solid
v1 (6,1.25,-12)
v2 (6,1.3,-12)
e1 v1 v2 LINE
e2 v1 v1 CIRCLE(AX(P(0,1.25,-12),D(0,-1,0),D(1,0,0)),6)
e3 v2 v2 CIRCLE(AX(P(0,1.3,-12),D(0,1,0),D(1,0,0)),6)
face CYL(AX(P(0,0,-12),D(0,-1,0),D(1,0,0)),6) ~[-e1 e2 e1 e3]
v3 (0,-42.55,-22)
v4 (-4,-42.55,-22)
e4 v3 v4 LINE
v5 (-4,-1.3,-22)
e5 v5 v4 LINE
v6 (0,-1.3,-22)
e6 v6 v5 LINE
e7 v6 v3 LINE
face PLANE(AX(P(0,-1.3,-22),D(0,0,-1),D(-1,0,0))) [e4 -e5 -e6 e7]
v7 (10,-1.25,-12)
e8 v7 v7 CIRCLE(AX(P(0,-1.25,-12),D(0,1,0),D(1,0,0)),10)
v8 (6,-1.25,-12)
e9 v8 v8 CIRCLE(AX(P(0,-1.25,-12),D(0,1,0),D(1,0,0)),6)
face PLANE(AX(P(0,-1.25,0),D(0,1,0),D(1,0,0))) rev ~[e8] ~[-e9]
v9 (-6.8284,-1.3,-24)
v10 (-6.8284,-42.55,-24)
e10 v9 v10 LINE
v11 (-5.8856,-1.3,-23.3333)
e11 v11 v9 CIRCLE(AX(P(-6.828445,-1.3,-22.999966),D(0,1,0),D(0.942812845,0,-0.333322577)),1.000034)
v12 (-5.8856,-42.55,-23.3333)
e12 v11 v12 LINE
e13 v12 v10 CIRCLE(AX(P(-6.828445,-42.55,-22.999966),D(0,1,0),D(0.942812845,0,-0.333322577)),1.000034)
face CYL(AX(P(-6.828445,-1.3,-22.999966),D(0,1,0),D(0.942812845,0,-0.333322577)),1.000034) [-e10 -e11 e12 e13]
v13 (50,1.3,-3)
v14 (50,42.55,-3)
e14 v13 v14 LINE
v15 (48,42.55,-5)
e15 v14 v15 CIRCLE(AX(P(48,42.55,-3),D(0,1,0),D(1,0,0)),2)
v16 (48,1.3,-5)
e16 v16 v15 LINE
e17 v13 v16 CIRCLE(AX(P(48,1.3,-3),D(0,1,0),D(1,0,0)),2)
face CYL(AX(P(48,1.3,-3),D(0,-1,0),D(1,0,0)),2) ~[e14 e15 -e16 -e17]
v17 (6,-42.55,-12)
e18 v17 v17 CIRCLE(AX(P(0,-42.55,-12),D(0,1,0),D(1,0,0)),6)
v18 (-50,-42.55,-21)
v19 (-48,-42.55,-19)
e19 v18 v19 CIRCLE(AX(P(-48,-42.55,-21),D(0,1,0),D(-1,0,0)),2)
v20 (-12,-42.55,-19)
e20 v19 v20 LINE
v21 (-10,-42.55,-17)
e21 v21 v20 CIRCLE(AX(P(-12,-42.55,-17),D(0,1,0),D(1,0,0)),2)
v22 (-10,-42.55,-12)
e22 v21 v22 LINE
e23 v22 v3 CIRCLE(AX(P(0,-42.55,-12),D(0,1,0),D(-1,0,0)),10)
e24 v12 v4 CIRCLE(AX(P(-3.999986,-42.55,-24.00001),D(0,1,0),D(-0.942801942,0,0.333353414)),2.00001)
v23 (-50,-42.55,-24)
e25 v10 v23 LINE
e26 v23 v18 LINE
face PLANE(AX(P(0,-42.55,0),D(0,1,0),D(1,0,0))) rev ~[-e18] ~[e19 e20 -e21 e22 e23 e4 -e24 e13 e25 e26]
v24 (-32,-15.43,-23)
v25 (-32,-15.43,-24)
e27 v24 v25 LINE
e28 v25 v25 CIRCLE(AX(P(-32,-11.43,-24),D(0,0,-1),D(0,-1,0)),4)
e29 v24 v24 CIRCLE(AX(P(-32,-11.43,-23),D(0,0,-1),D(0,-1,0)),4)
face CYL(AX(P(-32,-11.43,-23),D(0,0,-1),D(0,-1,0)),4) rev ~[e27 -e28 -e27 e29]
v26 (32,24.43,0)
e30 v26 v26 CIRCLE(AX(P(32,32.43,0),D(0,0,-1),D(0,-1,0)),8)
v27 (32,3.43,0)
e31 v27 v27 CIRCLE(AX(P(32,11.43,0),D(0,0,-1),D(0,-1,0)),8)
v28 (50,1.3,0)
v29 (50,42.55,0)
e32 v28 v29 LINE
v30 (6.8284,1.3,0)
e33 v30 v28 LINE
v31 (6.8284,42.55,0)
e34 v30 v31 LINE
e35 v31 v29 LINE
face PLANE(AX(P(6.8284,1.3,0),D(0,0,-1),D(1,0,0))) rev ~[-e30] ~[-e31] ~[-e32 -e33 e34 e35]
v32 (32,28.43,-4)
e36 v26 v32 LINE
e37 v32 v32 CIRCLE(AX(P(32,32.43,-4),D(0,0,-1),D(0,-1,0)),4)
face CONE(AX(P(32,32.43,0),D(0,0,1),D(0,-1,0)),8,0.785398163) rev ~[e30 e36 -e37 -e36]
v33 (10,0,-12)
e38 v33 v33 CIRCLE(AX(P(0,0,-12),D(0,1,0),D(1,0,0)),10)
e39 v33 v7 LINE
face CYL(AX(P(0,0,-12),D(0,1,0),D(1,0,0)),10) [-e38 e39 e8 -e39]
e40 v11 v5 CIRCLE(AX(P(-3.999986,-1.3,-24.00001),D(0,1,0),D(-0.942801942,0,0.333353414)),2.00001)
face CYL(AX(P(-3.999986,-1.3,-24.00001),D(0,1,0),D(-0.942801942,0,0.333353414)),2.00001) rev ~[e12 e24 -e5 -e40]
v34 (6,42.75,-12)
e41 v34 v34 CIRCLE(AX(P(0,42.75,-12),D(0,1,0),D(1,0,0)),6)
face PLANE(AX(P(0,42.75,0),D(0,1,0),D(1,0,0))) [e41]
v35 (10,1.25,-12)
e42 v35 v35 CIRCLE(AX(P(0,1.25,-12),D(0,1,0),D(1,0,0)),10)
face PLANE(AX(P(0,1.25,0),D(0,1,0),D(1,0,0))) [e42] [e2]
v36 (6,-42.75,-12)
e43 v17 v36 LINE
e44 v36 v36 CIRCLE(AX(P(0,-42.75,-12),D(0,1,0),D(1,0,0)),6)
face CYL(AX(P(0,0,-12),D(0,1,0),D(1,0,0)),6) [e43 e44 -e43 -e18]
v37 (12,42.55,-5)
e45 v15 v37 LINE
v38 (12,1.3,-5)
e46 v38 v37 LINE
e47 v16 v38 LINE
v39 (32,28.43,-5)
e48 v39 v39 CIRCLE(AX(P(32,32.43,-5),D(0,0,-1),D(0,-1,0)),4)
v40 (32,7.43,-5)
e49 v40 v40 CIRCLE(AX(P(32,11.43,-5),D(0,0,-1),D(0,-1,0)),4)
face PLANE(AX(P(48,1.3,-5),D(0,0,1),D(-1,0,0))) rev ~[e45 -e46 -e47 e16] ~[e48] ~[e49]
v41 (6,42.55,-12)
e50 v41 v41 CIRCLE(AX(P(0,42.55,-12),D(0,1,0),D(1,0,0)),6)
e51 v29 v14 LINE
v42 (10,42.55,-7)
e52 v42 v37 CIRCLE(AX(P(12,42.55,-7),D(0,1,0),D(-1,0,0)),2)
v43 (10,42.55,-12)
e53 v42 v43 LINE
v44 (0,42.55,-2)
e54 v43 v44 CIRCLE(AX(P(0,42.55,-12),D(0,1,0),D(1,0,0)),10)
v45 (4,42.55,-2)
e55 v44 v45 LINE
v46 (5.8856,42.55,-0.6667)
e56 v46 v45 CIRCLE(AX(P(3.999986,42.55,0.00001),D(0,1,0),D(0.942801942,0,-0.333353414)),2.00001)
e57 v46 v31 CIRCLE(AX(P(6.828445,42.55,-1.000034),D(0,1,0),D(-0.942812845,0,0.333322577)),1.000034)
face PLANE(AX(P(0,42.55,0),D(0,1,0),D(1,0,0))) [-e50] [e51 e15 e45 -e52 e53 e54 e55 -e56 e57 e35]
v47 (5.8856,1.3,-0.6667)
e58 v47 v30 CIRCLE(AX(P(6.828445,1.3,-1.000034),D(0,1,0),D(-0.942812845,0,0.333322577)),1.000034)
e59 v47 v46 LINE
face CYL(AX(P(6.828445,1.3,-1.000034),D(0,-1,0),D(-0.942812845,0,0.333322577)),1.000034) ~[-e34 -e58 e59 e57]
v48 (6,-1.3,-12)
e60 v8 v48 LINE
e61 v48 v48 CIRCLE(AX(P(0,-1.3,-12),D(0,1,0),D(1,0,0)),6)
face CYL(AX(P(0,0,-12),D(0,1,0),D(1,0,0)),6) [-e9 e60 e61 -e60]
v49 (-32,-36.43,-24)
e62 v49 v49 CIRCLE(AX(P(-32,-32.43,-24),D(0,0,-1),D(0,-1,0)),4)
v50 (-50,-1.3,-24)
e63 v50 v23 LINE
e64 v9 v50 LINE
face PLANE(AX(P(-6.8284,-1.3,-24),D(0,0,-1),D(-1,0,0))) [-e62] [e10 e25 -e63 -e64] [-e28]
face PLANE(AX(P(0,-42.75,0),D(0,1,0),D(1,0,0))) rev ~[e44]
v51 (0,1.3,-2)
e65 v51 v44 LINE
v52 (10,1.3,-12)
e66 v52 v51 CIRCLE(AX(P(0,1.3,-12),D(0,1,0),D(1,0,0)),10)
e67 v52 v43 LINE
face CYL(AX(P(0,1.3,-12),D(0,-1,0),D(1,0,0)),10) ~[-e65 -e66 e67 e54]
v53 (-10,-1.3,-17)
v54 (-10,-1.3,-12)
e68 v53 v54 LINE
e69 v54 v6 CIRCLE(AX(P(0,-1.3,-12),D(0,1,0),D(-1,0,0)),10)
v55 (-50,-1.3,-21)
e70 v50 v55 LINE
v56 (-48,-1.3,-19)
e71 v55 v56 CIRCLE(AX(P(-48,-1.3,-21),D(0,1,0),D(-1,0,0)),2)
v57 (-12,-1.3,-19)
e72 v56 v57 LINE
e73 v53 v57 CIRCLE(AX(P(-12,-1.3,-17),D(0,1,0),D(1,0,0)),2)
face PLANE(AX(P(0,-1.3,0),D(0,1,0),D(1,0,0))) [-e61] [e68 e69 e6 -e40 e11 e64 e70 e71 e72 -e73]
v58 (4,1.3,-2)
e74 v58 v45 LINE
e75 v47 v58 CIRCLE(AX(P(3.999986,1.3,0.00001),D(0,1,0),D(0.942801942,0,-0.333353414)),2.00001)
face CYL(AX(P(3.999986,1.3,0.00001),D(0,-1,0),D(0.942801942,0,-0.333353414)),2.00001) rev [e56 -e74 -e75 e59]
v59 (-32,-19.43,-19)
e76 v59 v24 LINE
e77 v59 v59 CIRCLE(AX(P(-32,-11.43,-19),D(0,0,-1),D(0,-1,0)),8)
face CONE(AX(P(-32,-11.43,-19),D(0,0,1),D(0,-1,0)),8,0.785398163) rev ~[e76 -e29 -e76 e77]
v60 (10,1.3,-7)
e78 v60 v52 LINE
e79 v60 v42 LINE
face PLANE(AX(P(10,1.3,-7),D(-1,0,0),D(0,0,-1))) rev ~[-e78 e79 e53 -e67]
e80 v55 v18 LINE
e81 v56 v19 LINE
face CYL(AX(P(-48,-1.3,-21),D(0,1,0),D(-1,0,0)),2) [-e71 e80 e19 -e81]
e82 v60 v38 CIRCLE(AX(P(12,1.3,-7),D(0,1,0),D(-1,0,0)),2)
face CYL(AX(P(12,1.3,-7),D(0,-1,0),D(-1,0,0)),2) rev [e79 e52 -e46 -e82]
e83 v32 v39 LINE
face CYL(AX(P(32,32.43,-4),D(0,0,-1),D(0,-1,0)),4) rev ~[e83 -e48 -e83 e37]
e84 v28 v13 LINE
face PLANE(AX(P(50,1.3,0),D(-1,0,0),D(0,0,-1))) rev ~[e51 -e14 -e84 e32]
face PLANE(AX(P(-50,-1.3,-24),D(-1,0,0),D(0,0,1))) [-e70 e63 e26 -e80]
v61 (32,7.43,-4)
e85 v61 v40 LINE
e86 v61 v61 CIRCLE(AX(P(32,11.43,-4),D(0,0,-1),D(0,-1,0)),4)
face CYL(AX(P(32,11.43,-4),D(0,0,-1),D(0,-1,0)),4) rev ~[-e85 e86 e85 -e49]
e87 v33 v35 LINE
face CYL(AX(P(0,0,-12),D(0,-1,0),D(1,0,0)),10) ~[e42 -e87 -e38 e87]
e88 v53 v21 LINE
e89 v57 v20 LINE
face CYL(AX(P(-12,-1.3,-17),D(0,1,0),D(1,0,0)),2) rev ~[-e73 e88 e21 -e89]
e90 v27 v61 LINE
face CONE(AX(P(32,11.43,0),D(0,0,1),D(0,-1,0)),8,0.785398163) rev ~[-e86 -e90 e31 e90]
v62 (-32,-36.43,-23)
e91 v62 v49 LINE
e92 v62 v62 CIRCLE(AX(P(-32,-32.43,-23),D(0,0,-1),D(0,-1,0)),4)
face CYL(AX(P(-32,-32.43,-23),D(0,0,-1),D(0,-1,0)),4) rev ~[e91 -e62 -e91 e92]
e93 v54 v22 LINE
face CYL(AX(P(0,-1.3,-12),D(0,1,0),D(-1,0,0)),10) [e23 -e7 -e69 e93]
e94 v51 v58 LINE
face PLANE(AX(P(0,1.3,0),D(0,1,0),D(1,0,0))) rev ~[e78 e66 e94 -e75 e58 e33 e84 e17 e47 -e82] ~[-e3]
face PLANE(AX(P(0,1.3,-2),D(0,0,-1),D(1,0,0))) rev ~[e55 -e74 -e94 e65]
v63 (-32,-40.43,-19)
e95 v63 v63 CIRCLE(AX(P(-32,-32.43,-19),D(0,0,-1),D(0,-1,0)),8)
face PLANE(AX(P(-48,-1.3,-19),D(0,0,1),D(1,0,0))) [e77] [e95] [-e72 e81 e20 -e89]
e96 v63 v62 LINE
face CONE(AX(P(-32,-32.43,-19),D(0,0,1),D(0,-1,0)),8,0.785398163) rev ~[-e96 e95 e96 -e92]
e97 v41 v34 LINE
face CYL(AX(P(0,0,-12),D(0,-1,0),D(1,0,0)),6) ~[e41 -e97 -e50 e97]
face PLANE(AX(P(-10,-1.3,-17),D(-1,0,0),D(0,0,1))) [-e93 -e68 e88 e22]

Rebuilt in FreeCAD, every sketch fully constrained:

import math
import FreeCAD as App
import Part
import Sketcher

V = App.Vector
Q = App.Units.Quantity

doc = App.newDocument("Part")
body = doc.addObject("PartDesign::Body", "Body")

sketch1 = body.newObject("Sketcher::SketchObject", "Sketch")
sketch1.AttachmentSupport = (doc.getObject("XZ_Plane"), [""])
sketch1.MapMode = "FlatFace"
sketch1.addGeometry(Part.Circle(V(0, -12, 0), V(0, 0, 1), 10), False)
sketch1.addConstraint(Sketcher.Constraint("PointOnObject", 0, 3, -2))
sketch1.addConstraint(Sketcher.Constraint("Diameter", 0, Q("20 mm")))
sketch1.addConstraint(Sketcher.Constraint("DistanceY", 0, 3, -1, 1, Q("12 mm")))
pad1 = body.newObject("PartDesign::Pad", "Pad")
pad1.Profile = sketch1
pad1.Length = 2.5
pad1.Midplane = True

sketch2 = body.newObject("Sketcher::SketchObject", "Sketch001")
sketch2.AttachmentSupport = (doc.getObject("XZ_Plane"), [""])
sketch2.MapMode = "FlatFace"
sketch2.addGeometry(Part.Circle(V(0, -12, 0), V(0, 0, 1), 6), False)
sketch2.addConstraint(Sketcher.Constraint("PointOnObject", 0, 3, -2))
sketch2.addConstraint(Sketcher.Constraint("Diameter", 0, Q("12 mm")))
sketch2.addConstraint(Sketcher.Constraint("DistanceY", 0, 3, -1, 1, Q("12 mm")))
pad2 = body.newObject("PartDesign::Pad", "Pad001")
pad2.Profile = sketch2
pad2.Length = 85.5
pad2.Midplane = True

sketch3 = body.newObject("Sketcher::SketchObject", "Sketch002")
sketch3.AttachmentSupport = (doc.getObject("XZ_Plane"), [""])
sketch3.MapMode = "FlatFace"
sketch3.AttachmentOffset = App.Placement(V(0, 0, 1.3), App.Rotation())
sketch3.addGeometry(Part.LineSegment(V(-6.8, -24, 0), V(-50, -24, 0)), False)
sketch3.addGeometry(Part.LineSegment(V(-50, -24, 0), V(-50, -21, 0)), False)
sketch3.addGeometry(Part.ArcOfCircle(Part.Circle(V(-48, -21, 0), V(0, 0, 1), 2), math.radians(90), math.radians(180)), False)
sketch3.addGeometry(Part.LineSegment(V(-48, -19, 0), V(-12, -19, 0)), False)
sketch3.addGeometry(Part.ArcOfCircle(Part.Circle(V(-12, -17, 0), V(0, 0, 1), 2), math.radians(-90), math.radians(0)), False)
sketch3.addGeometry(Part.LineSegment(V(-10, -17, 0), V(-10, -12, 0)), False)
sketch3.addGeometry(Part.ArcOfCircle(Part.Circle(V(0, -12, 0), V(0, 0, 1), 10), math.radians(-90), math.radians(180)), False)
sketch3.addGeometry(Part.LineSegment(V(0, -22, 0), V(-4, -22, 0)), False)
sketch3.addGeometry(Part.ArcOfCircle(Part.Circle(V(-4, -24, 0), V(0, 0, 1), 2), math.radians(90), math.radians(161)), False)
sketch3.addGeometry(Part.ArcOfCircle(Part.Circle(V(-6.8, -23, 0), V(0, 0, 1), 1), math.radians(-90), math.radians(-19)), False)
sketch3.addGeometry(Part.Circle(V(0, -12, 0), V(0, 0, 1), 6), False)
sketch3.addConstraint(Sketcher.Constraint("Coincident", 0, 2, 1, 1))
sketch3.addConstraint(Sketcher.Constraint("Tangent", 1, 2, 2, 2))
sketch3.addConstraint(Sketcher.Constraint("Tangent", 2, 1, 3, 1))
sketch3.addConstraint(Sketcher.Constraint("Tangent", 3, 2, 4, 1))
sketch3.addConstraint(Sketcher.Constraint("Tangent", 4, 2, 5, 1))
sketch3.addConstraint(Sketcher.Constraint("Tangent", 5, 2, 6, 2))
sketch3.addConstraint(Sketcher.Constraint("Tangent", 6, 1, 7, 1))
sketch3.addConstraint(Sketcher.Constraint("Tangent", 7, 2, 8, 1))
sketch3.addConstraint(Sketcher.Constraint("Tangent", 8, 2, 9, 2))
sketch3.addConstraint(Sketcher.Constraint("Tangent", 9, 1, 0, 1))
sketch3.addConstraint(Sketcher.Constraint("Horizontal", 0))
sketch3.addConstraint(Sketcher.Constraint("Vertical", 1))
sketch3.addConstraint(Sketcher.Constraint("Horizontal", 3))
sketch3.addConstraint(Sketcher.Constraint("Vertical", 5))
sketch3.addConstraint(Sketcher.Constraint("Horizontal", 7))
sketch3.addConstraint(Sketcher.Constraint("Coincident", 10, 3, 6, 3))
sketch3.addConstraint(Sketcher.Constraint("Equal", 2, 4))
sketch3.addConstraint(Sketcher.Constraint("Equal", 4, 8))
sketch3.addConstraint(Sketcher.Constraint("PointOnObject", 6, 3, -2))
sketch3.addConstraint(Sketcher.Constraint("Horizontal", 8, 3, 0, 2))
sketch3.addConstraint(Sketcher.Constraint("Diameter", 10, Q("12 mm")))
sketch3.addConstraint(Sketcher.Constraint("Radius", 2, Q("2 mm")))
sketch3.addConstraint(Sketcher.Constraint("Radius", 6, Q("10 mm")))
sketch3.addConstraint(Sketcher.Constraint("Radius", 9, Q("1 mm")))
sketch3.addConstraint(Sketcher.Constraint("DistanceX", 3, 1, 3, 2, Q("36 mm")))
sketch3.addConstraint(Sketcher.Constraint("DistanceX", 7, 2, 7, 1, Q("4 mm")))
sketch3.addConstraint(Sketcher.Constraint("DistanceY", 1, 1, 1, 2, Q("3 mm")))
sketch3.addConstraint(Sketcher.Constraint("DistanceY", 2, 3, -1, 1, Q("21 mm")))
pad3 = body.newObject("PartDesign::Pad", "Pad002")
pad3.Profile = sketch3
pad3.Length = 41.25

sketch4 = body.newObject("Sketcher::SketchObject", "Sketch003")
sketch4.AttachmentSupport = (doc.getObject("XZ_Plane"), [""])
sketch4.MapMode = "FlatFace"
sketch4.AttachmentOffset = App.Placement(V(0, 0, -1.3), App.Rotation())
sketch4.addGeometry(Part.LineSegment(V(10, -7, 0), V(10, -12, 0)), False)
sketch4.addGeometry(Part.ArcOfCircle(Part.Circle(V(0, -12, 0), V(0, 0, 1), 10), math.radians(90), math.radians(360)), False)
sketch4.addGeometry(Part.LineSegment(V(0, -2, 0), V(4, -2, 0)), False)
sketch4.addGeometry(Part.ArcOfCircle(Part.Circle(V(4, 0, 0), V(0, 0, 1), 2), math.radians(-90), math.radians(-19)), False)
sketch4.addGeometry(Part.ArcOfCircle(Part.Circle(V(6.8, -1, 0), V(0, 0, 1), 1), math.radians(90), math.radians(161)), False)
sketch4.addGeometry(Part.LineSegment(V(6.8, 0, 0), V(50, 0, 0)), False)
sketch4.addGeometry(Part.LineSegment(V(50, 0, 0), V(50, -3, 0)), False)
sketch4.addGeometry(Part.ArcOfCircle(Part.Circle(V(48, -3, 0), V(0, 0, 1), 2), math.radians(-90), math.radians(0)), False)
sketch4.addGeometry(Part.LineSegment(V(48, -5, 0), V(12, -5, 0)), False)
sketch4.addGeometry(Part.ArcOfCircle(Part.Circle(V(12, -7, 0), V(0, 0, 1), 2), math.radians(90), math.radians(180)), False)
sketch4.addGeometry(Part.Circle(V(0, -12, 0), V(0, 0, 1), 6), False)
sketch4.addConstraint(Sketcher.Constraint("Tangent", 0, 2, 1, 2))
sketch4.addConstraint(Sketcher.Constraint("Tangent", 1, 1, 2, 1))
sketch4.addConstraint(Sketcher.Constraint("Tangent", 2, 2, 3, 1))
sketch4.addConstraint(Sketcher.Constraint("Tangent", 3, 2, 4, 2))
sketch4.addConstraint(Sketcher.Constraint("Tangent", 4, 1, 5, 1))
sketch4.addConstraint(Sketcher.Constraint("Coincident", 5, 2, 6, 1))
sketch4.addConstraint(Sketcher.Constraint("Tangent", 6, 2, 7, 2))
sketch4.addConstraint(Sketcher.Constraint("Tangent", 7, 1, 8, 1))
sketch4.addConstraint(Sketcher.Constraint("Tangent", 8, 2, 9, 1))
sketch4.addConstraint(Sketcher.Constraint("Tangent", 9, 2, 0, 1))
sketch4.addConstraint(Sketcher.Constraint("Vertical", 0))
sketch4.addConstraint(Sketcher.Constraint("Horizontal", 2))
sketch4.addConstraint(Sketcher.Constraint("Horizontal", 5))
sketch4.addConstraint(Sketcher.Constraint("Vertical", 6))
sketch4.addConstraint(Sketcher.Constraint("Horizontal", 8))
sketch4.addConstraint(Sketcher.Constraint("Coincident", 10, 3, 1, 3))
sketch4.addConstraint(Sketcher.Constraint("Equal", 3, 7))
sketch4.addConstraint(Sketcher.Constraint("Equal", 7, 9))
sketch4.addConstraint(Sketcher.Constraint("PointOnObject", 1, 3, -2))
sketch4.addConstraint(Sketcher.Constraint("PointOnObject", 3, 3, -1))
sketch4.addConstraint(Sketcher.Constraint("PointOnObject", 4, 1, -1))
sketch4.addConstraint(Sketcher.Constraint("Diameter", 10, Q("12 mm")))
sketch4.addConstraint(Sketcher.Constraint("Radius", 1, Q("10 mm")))
sketch4.addConstraint(Sketcher.Constraint("Radius", 3, Q("2 mm")))
sketch4.addConstraint(Sketcher.Constraint("Radius", 4, Q("1 mm")))
sketch4.addConstraint(Sketcher.Constraint("DistanceX", 2, 1, 2, 2, Q("4 mm")))
sketch4.addConstraint(Sketcher.Constraint("DistanceX", 8, 2, 8, 1, Q("36 mm")))
sketch4.addConstraint(Sketcher.Constraint("DistanceY", 0, 2, 0, 1, Q("5 mm")))
pad4 = body.newObject("PartDesign::Pad", "Pad003")
pad4.Profile = sketch4
pad4.Length = 41.25
pad4.Reversed = True

sketch5 = body.newObject("Sketcher::SketchObject", "Sketch004")
sketch5.AttachmentSupport = (doc.getObject("XY_Plane"), [""])
sketch5.MapMode = "FlatFace"
sketch5.addGeometry(Part.Circle(V(32, 11.4, 0), V(0, 0, 1), 4), False)
sketch5.addConstraint(Sketcher.Constraint("Diameter", 0, Q("8 mm")))
sketch5.addConstraint(Sketcher.Constraint("DistanceX", -1, 1, 0, 3, Q("32 mm")))
sketch5.addConstraint(Sketcher.Constraint("DistanceY", -1, 1, 0, 3, Q("11.43 mm")))
doc.recompute()
hole = body.newObject("PartDesign::Hole", "Hole")
hole.Profile = sketch5
hole.ThreadType = "None"
hole.Diameter = 8
hole.DepthType = "Dimension"
hole.Depth = 5
hole.DrillPoint = "Flat"
hole.HoleCutType = "Countersink"
hole.HoleCutDiameter = 16
hole.HoleCutCountersinkAngle = 90

sketch6 = body.newObject("Sketcher::SketchObject", "Sketch005")
sketch6.AttachmentSupport = (doc.getObject("XY_Plane"), [""])
sketch6.MapMode = "FlatFace"
sketch6.addGeometry(Part.Circle(V(32, 32.4, 0), V(0, 0, 1), 4), False)
sketch6.addConstraint(Sketcher.Constraint("Diameter", 0, Q("8 mm")))
sketch6.addConstraint(Sketcher.Constraint("DistanceX", -1, 1, 0, 3, Q("32 mm")))
sketch6.addConstraint(Sketcher.Constraint("DistanceY", -1, 1, 0, 3, Q("32.43 mm")))
doc.recompute()
hole2 = body.newObject("PartDesign::Hole", "Hole001")
hole2.Profile = sketch6
hole2.ThreadType = "None"
hole2.Diameter = 8
hole2.DepthType = "Dimension"
hole2.Depth = 5
hole2.DrillPoint = "Flat"
hole2.HoleCutType = "Countersink"
hole2.HoleCutDiameter = 16
hole2.HoleCutCountersinkAngle = 90

sketch7 = body.newObject("Sketcher::SketchObject", "Sketch006")
sketch7.AttachmentSupport = (doc.getObject("XY_Plane"), [""])
sketch7.MapMode = "FlatFace"
sketch7.AttachmentOffset = App.Placement(V(0, 0, -19), App.Rotation())
sketch7.addGeometry(Part.Circle(V(-32, -11.4, 0), V(0, 0, 1), 4), False)
sketch7.addConstraint(Sketcher.Constraint("Diameter", 0, Q("8 mm")))
sketch7.addConstraint(Sketcher.Constraint("DistanceX", 0, 3, -1, 1, Q("32 mm")))
sketch7.addConstraint(Sketcher.Constraint("DistanceY", 0, 3, -1, 1, Q("11.43 mm")))
doc.recompute()
hole3 = body.newObject("PartDesign::Hole", "Hole002")
hole3.Profile = sketch7
hole3.ThreadType = "None"
hole3.Diameter = 8
hole3.DepthType = "Dimension"
hole3.Depth = 5
hole3.DrillPoint = "Flat"
hole3.HoleCutType = "Countersink"
hole3.HoleCutDiameter = 16
hole3.HoleCutCountersinkAngle = 90

sketch8 = body.newObject("Sketcher::SketchObject", "Sketch007")
sketch8.AttachmentSupport = (doc.getObject("XY_Plane"), [""])
sketch8.MapMode = "FlatFace"
sketch8.AttachmentOffset = App.Placement(V(0, 0, -19), App.Rotation())
sketch8.addGeometry(Part.Circle(V(-32, -32.4, 0), V(0, 0, 1), 4), False)
sketch8.addConstraint(Sketcher.Constraint("Diameter", 0, Q("8 mm")))
sketch8.addConstraint(Sketcher.Constraint("DistanceX", 0, 3, -1, 1, Q("32 mm")))
sketch8.addConstraint(Sketcher.Constraint("DistanceY", 0, 3, -1, 1, Q("32.43 mm")))
doc.recompute()
hole4 = body.newObject("PartDesign::Hole", "Hole003")
hole4.Profile = sketch8
hole4.ThreadType = "None"
hole4.Diameter = 8
hole4.DepthType = "Dimension"
hole4.Depth = 5
hole4.DrillPoint = "Flat"
hole4.HoleCutType = "Countersink"
hole4.HoleCutDiameter = 16
hole4.HoleCutCountersinkAngle = 90

doc.recompute()
